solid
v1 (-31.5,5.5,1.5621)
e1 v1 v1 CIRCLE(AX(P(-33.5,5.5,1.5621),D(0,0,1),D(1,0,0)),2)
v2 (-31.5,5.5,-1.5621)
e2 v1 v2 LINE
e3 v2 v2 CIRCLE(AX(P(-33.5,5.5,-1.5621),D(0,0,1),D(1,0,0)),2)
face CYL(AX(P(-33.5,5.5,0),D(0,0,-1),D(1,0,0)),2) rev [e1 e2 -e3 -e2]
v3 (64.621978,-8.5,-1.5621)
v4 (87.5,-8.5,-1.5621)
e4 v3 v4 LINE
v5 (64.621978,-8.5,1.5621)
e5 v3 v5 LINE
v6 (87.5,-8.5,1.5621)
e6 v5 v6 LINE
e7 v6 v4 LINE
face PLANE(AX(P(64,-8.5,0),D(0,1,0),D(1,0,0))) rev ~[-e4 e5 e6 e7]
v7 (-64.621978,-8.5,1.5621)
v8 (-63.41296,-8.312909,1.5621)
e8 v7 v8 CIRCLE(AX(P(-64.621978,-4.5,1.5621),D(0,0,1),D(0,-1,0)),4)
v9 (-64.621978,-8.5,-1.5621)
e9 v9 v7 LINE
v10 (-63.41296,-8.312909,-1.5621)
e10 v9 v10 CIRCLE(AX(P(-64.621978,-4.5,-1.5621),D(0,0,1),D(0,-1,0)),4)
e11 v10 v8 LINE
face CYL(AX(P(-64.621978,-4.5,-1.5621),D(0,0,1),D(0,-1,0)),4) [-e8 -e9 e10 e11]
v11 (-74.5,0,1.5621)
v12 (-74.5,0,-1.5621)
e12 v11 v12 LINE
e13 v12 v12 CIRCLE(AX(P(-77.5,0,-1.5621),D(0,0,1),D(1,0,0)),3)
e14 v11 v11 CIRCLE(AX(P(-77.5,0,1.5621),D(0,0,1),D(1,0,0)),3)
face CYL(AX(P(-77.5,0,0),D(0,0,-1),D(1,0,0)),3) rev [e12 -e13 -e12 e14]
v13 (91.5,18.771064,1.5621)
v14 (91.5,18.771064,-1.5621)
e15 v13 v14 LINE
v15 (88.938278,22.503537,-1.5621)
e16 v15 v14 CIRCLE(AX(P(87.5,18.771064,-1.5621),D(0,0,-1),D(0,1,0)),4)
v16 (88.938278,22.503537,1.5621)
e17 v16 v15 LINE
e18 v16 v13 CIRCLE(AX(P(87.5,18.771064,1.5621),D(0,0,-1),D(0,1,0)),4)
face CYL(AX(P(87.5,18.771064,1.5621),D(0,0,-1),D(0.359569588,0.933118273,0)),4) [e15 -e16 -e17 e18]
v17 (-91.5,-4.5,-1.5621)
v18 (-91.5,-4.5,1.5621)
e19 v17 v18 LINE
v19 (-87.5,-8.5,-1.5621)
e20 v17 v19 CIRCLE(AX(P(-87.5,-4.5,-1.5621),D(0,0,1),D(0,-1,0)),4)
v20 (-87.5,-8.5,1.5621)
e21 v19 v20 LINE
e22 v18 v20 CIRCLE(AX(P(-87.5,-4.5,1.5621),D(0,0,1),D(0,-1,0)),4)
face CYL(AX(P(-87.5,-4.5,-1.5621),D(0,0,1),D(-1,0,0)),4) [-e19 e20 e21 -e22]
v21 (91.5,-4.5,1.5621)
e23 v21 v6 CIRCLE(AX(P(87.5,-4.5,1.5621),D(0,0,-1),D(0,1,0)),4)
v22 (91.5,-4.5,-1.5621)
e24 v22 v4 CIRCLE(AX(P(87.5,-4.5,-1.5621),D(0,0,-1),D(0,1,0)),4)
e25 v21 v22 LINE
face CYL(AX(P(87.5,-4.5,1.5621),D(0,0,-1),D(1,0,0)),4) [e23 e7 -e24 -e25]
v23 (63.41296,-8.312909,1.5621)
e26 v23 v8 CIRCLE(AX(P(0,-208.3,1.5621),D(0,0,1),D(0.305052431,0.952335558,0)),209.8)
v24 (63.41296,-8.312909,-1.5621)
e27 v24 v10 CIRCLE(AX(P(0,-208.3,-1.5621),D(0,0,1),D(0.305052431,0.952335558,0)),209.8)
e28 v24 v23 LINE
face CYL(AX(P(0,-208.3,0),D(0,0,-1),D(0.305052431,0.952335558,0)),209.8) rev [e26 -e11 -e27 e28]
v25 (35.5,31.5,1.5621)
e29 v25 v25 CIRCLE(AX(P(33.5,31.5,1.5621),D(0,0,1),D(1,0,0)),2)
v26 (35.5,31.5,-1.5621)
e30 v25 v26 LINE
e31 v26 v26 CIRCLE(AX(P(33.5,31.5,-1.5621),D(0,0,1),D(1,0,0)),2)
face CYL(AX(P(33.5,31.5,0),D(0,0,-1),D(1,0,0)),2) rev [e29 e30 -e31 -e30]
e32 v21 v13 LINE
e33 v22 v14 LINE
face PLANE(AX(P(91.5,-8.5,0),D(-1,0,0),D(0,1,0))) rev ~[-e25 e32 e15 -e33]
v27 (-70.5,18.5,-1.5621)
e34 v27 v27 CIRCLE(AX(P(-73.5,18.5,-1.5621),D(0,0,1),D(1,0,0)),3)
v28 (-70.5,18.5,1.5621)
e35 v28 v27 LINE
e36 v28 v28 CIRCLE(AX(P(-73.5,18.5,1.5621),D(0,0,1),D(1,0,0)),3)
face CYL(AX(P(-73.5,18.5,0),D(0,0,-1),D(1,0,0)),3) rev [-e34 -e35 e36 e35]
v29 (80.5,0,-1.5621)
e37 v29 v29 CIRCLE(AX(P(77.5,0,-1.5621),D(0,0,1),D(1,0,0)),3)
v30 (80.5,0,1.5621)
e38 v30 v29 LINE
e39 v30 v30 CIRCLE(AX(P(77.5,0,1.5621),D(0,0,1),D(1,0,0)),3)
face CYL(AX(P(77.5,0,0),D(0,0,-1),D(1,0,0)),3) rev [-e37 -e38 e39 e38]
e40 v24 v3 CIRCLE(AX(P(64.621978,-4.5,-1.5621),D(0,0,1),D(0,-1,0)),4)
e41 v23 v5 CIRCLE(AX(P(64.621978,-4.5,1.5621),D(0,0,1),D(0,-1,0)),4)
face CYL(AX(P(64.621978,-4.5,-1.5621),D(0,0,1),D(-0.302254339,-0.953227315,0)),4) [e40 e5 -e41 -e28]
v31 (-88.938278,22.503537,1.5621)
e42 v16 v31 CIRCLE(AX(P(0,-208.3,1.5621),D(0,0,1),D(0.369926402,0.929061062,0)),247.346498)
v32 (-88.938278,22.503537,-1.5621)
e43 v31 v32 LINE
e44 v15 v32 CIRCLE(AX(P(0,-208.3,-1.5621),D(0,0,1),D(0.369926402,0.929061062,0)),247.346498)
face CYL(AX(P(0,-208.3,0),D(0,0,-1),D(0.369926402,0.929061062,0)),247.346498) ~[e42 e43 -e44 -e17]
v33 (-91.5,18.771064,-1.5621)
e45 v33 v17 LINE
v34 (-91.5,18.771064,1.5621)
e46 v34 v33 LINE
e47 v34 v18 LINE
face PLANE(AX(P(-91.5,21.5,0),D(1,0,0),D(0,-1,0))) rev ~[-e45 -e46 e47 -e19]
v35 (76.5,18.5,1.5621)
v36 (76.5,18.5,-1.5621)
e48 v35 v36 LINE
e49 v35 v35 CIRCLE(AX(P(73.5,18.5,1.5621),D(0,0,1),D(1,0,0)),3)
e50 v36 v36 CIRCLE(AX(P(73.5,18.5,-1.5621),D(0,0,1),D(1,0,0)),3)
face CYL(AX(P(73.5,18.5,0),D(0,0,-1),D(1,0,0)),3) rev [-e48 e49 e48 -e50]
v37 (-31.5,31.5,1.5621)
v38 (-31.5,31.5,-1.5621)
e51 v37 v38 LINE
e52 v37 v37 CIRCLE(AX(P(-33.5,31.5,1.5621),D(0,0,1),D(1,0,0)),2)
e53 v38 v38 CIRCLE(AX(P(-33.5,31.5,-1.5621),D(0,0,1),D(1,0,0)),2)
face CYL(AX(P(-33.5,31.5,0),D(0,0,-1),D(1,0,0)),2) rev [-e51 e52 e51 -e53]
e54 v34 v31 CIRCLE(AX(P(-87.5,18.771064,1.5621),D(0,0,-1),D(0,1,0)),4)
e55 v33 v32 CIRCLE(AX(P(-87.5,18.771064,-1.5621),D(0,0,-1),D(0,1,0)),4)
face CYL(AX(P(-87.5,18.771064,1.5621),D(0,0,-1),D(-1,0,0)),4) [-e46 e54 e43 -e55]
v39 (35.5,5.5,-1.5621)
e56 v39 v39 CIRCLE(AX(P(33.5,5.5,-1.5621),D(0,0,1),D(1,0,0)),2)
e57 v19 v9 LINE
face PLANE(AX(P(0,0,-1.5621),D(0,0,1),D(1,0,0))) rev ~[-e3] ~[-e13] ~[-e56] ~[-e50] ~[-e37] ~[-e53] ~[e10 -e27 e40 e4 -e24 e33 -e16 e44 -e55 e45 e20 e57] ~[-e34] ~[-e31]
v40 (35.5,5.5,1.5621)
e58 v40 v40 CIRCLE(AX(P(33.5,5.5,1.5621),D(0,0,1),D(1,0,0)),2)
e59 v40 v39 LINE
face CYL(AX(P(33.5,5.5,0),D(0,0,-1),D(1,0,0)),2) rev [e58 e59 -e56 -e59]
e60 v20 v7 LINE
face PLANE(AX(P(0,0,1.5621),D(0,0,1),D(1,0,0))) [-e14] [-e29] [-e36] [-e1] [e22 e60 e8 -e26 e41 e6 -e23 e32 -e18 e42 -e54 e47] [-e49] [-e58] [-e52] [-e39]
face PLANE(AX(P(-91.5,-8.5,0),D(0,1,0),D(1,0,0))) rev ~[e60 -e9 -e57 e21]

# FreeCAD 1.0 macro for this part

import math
import FreeCAD as App
import Part
import Sketcher
Q = App.Units.Quantity


def edges_at(feature, points):
    """Names of the edges that pass closest to the given points."""
    edges = feature.Shape.Edges
    near = lambda p: min(range(len(edges)), key=lambda i: edges[i].distToShape(Part.Vertex(*p))[0])
    return sorted({f"Edge{near(p) + 1}" for p in points})

doc = App.newDocument("Part")
body = doc.addObject("PartDesign::Body", "Body")

# Sketch on XY plane
sketch1 = doc.addObject("Sketcher::SketchObject", "Sketch")
body.addObject(sketch1)
sketch1.AttachmentSupport = (doc.XY_Plane, [""])
sketch1.MapMode = "FlatFace"
sketch1.addGeometry([
    Part.LineSegment(App.Vector(-91.5, 21.5, 0), App.Vector(-91.5, -8.5, 0)),  # 0
    Part.LineSegment(App.Vector(-91.5, -8.5, 0), App.Vector(-64, -8.5, 0)),  # 1
    Part.ArcOfCircle(Part.Circle(App.Vector(0, -208.3, 0), App.Vector(0, 0, 1), 209.8), math.radians(72), math.radians(108)),  # 2
    Part.LineSegment(App.Vector(64, -8.5, 0), App.Vector(91.5, -8.5, 0)),  # 3
    Part.LineSegment(App.Vector(91.5, -8.5, 0), App.Vector(91.5, 21.5, 0)),  # 4
    Part.ArcOfCircle(Part.Circle(App.Vector(0, -208.3, 0), App.Vector(0, 0, 1), 247.3), math.radians(68), math.radians(112)),  # 5
    Part.Circle(App.Vector(-77.5, 0, 0), App.Vector(0, 0, 1), 3),  # 6
    Part.Circle(App.Vector(-33.5, 5.5, 0), App.Vector(0, 0, 1), 2),  # 7
    Part.Circle(App.Vector(77.5, 0, 0), App.Vector(0, 0, 1), 3),  # 8
    Part.Circle(App.Vector(33.5, 5.5, 0), App.Vector(0, 0, 1), 2),  # 9
    Part.Circle(App.Vector(-73.5, 18.5, 0), App.Vector(0, 0, 1), 3),  # 10
    Part.Circle(App.Vector(-33.5, 31.5, 0), App.Vector(0, 0, 1), 2),  # 11
    Part.Circle(App.Vector(73.5, 18.5, 0), App.Vector(0, 0, 1), 3),  # 12
    Part.Circle(App.Vector(33.5, 31.5, 0), App.Vector(0, 0, 1), 2),  # 13
], False)
sketch1.addConstraint([
    Sketcher.Constraint("Coincident", 0, 2, 1, 1),
    Sketcher.Constraint("Coincident", 1, 2, 2, 2),
    Sketcher.Constraint("Coincident", 2, 1, 3, 1),
    Sketcher.Constraint("Coincident", 3, 2, 4, 1),
    Sketcher.Constraint("Coincident", 4, 2, 5, 1),
    Sketcher.Constraint("Coincident", 5, 2, 0, 1),
    Sketcher.Constraint("Vertical", 0),
    Sketcher.Constraint("Horizontal", 1),
    Sketcher.Constraint("Horizontal", 3),
    Sketcher.Constraint("Vertical", 4),
    Sketcher.Constraint("Coincident", 5, 3, 2, 3),
    Sketcher.Constraint("Equal", 6, 8),
    Sketcher.Constraint("Equal", 7, 9),
    Sketcher.Constraint("Equal", 8, 10),
    Sketcher.Constraint("Equal", 9, 11),
    Sketcher.Constraint("Equal", 10, 12),
    Sketcher.Constraint("Equal", 11, 13),
    Sketcher.Constraint("Symmetric", 6, 3, 8, 3, -1, 1),
    Sketcher.Constraint("Symmetric", 7, 3, 9, 3, -2),
    Sketcher.Constraint("Symmetric", 10, 3, 12, 3, -2),
    Sketcher.Constraint("Symmetric", 11, 3, 13, 3, -2),
    Sketcher.Constraint("Symmetric", 1, 2, 2, 1, -2),
    Sketcher.Constraint("PointOnObject", 6, 3, -1),
    Sketcher.Constraint("Horizontal", 4, 2, 5, 2),
    Sketcher.Constraint("Vertical", 7, 3, 11, 3),
    Sketcher.Constraint("Diameter", 6, Q("6 mm")),
    Sketcher.Constraint("Diameter", 7, Q("4 mm")),
    Sketcher.Constraint("DistanceY", 0, 2, 0, 1, Q("30 mm")),
    Sketcher.Constraint("DistanceX", 1, 1, 1, 2, Q("27.5 mm")),
    Sketcher.Constraint("DistanceX", 6, 3, 8, 3, Q("155 mm")),
    Sketcher.Constraint("DistanceX", 7, 3, 9, 3, Q("67 mm")),
    Sketcher.Constraint("DistanceX", 6, 3, 10, 3, Q("4 mm")),
    Sketcher.Constraint("DistanceY", 7, 3, 11, 3, Q("26 mm")),
    Sketcher.Constraint("DistanceX", 0, 2, 6, 3, Q("14 mm")),
    Sketcher.Constraint("DistanceY", 0, 2, 7, 3, Q("14 mm")),
    Sketcher.Constraint("DistanceY", -1, 1, 10, 3, Q("18.5 mm")),
    Sketcher.Constraint("DistanceY", 0, 2, -1, 1, Q("8.5 mm")),
    Sketcher.Constraint("Radius", 2, Q("209.8 mm")),
])
pad1 = doc.addObject("PartDesign::Pad", "Pad")
body.addObject(pad1)
pad1.Profile = sketch1
pad1.Length = 3.1242
pad1.Midplane = True
doc.recompute()

fillet = doc.addObject("PartDesign::Fillet", "Fillet")
body.addObject(fillet)
fillet.Base = (pad1, edges_at(pad1, [
    (-91.5, -8.5, 0),
    (-91.5, 21.5, 0),
    (-64, -8.5, 0),
    (64, -8.5, 0),
    (91.5, -8.5, 0),
    (91.5, 21.5, 0),
]))
fillet.Radius = 4

doc.recompute()
